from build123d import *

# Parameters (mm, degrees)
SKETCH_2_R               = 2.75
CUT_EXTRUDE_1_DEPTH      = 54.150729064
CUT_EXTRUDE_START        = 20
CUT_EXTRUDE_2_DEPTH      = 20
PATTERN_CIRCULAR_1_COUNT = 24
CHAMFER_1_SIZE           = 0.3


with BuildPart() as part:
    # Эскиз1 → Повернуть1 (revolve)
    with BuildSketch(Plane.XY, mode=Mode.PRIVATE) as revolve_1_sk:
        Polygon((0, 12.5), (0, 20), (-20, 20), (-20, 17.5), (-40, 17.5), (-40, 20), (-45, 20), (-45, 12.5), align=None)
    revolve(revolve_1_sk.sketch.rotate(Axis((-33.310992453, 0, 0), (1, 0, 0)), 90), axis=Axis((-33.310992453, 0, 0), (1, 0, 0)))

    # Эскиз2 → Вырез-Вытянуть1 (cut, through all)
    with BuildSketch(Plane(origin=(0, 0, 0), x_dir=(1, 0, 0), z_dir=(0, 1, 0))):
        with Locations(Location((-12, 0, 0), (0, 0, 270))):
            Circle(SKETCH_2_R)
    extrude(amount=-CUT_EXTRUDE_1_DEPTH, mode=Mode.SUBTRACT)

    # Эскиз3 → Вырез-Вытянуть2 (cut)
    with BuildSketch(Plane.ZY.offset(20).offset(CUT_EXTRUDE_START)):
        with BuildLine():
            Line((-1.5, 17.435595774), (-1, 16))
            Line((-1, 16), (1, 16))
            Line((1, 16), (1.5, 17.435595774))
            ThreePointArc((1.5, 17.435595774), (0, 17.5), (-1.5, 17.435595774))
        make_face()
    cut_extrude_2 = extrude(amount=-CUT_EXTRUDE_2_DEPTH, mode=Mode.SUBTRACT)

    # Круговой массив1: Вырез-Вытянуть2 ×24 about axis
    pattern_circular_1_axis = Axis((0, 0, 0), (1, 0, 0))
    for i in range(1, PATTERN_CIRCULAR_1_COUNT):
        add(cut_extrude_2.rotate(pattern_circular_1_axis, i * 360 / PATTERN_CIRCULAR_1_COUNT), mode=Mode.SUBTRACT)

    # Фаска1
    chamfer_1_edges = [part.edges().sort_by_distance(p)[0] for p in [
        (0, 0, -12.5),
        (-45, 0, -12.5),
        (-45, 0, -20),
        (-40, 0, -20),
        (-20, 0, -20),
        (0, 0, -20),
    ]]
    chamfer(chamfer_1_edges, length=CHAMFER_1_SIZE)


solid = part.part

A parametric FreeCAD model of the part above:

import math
import FreeCAD as App
import Part
import Sketcher
from FreeCAD import Vector
Q = App.Units.Quantity


def edges_at(feature, points):
    """Names of the edges that pass closest to the given points."""
    edges = feature.Shape.Edges
    near = lambda p: min(range(len(edges)), key=lambda i: edges[i].distToShape(Part.Vertex(*p))[0])
    return sorted({f"Edge{near(p) + 1}" for p in points})


def add_polygon(sketch, points):
    """Adds a closed chain of lines whose ends are joined by coincident constraints."""
    first, n = sketch.GeometryCount, len(points)
    for a, b in zip(points, points[1:] + points[:1]):
        sketch.addGeometry(Part.LineSegment(App.Vector(*a, 0), App.Vector(*b, 0)), False)
    for i in range(n):
        sketch.addConstraint(Sketcher.Constraint("Coincident", first + i, 2, first + (i + 1) % n, 1))

doc = App.newDocument("Part")
body = doc.addObject("PartDesign::Body", "Body")

# Sketch on XY plane
sketch1 = doc.addObject("Sketcher::SketchObject", "Sketch")
body.addObject(sketch1)
sketch1.AttachmentSupport = (doc.XY_Plane, [""])
sketch1.MapMode = "FlatFace"
add_polygon(sketch1, [(0, 12.5), (0, 20), (-20, 20), (-20, 17.5), (-40, 17.5), (-40, 20), (-45, 20), (-45, 12.5)])  # lines 0-7
sketch1.addConstraint(Sketcher.Constraint("Vertical", 0))
sketch1.addConstraint(Sketcher.Constraint("Horizontal", 1))
sketch1.addConstraint(Sketcher.Constraint("Vertical", 2))
sketch1.addConstraint(Sketcher.Constraint("Horizontal", 3))
sketch1.addConstraint(Sketcher.Constraint("Vertical", 4))
sketch1.addConstraint(Sketcher.Constraint("Horizontal", 5))
sketch1.addConstraint(Sketcher.Constraint("Vertical", 6))
sketch1.addConstraint(Sketcher.Constraint("Horizontal", 7))
sketch1.addConstraint(Sketcher.Constraint("PointOnObject", 0, 2, -2))
sketch1.addConstraint(Sketcher.Constraint("Horizontal", 1, 2, 4, 2))
sketch1.addConstraint(Sketcher.Constraint("Equal", 1, 3))
sketch1.addConstraint(Sketcher.Constraint("DistanceX", 1, 2, 1, 1, Q("20 mm")))
sketch1.addConstraint(Sketcher.Constraint("DistanceX", 5, 2, 5, 1, Q("5 mm")))
sketch1.addConstraint(Sketcher.Constraint("DistanceY", 0, 1, 0, 2, Q("7.5 mm")))
sketch1.addConstraint(Sketcher.Constraint("DistanceY", 2, 2, 2, 1, Q("2.5 mm")))
sketch1.addConstraint(Sketcher.Constraint("DistanceY", -1, 1, 0, 2, Q("20 mm")))
revolution = doc.addObject("PartDesign::Revolution", "Revolution")
body.addObject(revolution)
revolution.Profile = sketch1
revolution.ReferenceAxis = (sketch1, ["H_Axis"])
revolution.Angle = 360

# Sketch on XZ plane
sketch2 = doc.addObject("Sketcher::SketchObject", "Sketch001")
body.addObject(sketch2)
sketch2.AttachmentSupport = (doc.XZ_Plane, [""])
sketch2.MapMode = "FlatFace"
sketch2.addGeometry(Part.Circle(Vector(-12, 0, 0), Vector(0, 0, 1), 2.8), False)
sketch2.addConstraint(Sketcher.Constraint("PointOnObject", 0, 3, -1))
sketch2.addConstraint(Sketcher.Constraint("Diameter", 0, Q("5.5 mm")))
sketch2.addConstraint(Sketcher.Constraint("DistanceX", 0, 3, -1, 1, Q("12 mm")))
pocket1 = doc.addObject("PartDesign::Pocket", "Pocket")
body.addObject(pocket1)
pocket1.Profile = sketch2
pocket1.Type = "ThroughAll"
pocket1.Reversed = True

# Sketch on YZ plane
sketch3 = doc.addObject("Sketcher::SketchObject", "Sketch002")
body.addObject(sketch3)
sketch3.AttachmentSupport = (doc.YZ_Plane, [""])
sketch3.MapMode = "FlatFace"
sketch3.AttachmentOffset = App.Placement(Vector(0, 0, -40), App.Rotation())
sketch3.addGeometry(Part.LineSegment(Vector(17.4, -1.5, 0), Vector(16, -1, 0)), False)
sketch3.addGeometry(Part.LineSegment(Vector(16, -1, 0), Vector(16, 1, 0)), False)
sketch3.addGeometry(Part.LineSegment(Vector(16, 1, 0), Vector(17.4, 1.5, 0)), False)
sketch3.addGeometry(Part.ArcOfCircle(Part.Circle(Vector(0, 0, 0), Vector(0, 0, 1), 17.5), math.radians(-4.92), math.radians(4.92)), False)
sketch3.addConstraint(Sketcher.Constraint("Coincident", 0, 2, 1, 1))
sketch3.addConstraint(Sketcher.Constraint("Coincident", 1, 2, 2, 1))
sketch3.addConstraint(Sketcher.Constraint("Coincident", 2, 2, 3, 2))
sketch3.addConstraint(Sketcher.Constraint("Coincident", 3, 1, 0, 1))
sketch3.addConstraint(Sketcher.Constraint("Vertical", 1))
sketch3.addConstraint(Sketcher.Constraint("Coincident", 3, 3, -1, 1))
sketch3.addConstraint(Sketcher.Constraint("Vertical", 2, 2, 3, 1))
sketch3.addConstraint(Sketcher.Constraint("Equal", 0, 2))
sketch3.addConstraint(Sketcher.Constraint("Radius", 3, Q("17.5 mm")))
sketch3.addConstraint(Sketcher.Constraint("DistanceY", 1, 1, 1, 2, Q("2 mm")))
sketch3.addConstraint(Sketcher.Constraint("DistanceX", -1, 1, 0, 2, Q("16 mm")))
sketch3.addConstraint(Sketcher.Constraint("DistanceY", 3, 1, 2, 2, Q("3 mm")))
pocket2 = doc.addObject("PartDesign::Pocket", "Pocket001")
body.addObject(pocket2)
pocket2.Profile = sketch3
pocket2.Length = 20
pocket2.Reversed = True
doc.recompute()

polarpattern = doc.addObject("PartDesign::PolarPattern", "PolarPattern")
body.addObject(polarpattern)
polarpattern.Originals = [pocket2]
polarpattern.Axis = (doc.X_Axis, [""])
polarpattern.Angle = 360
polarpattern.Occurrences = 24
body.Tip = polarpattern
doc.recompute()

chamfer = doc.addObject("PartDesign::Chamfer", "Chamfer")
body.addObject(chamfer)
chamfer.Base = (polarpattern, edges_at(polarpattern, [
    (0, 0, -12.5),
    (-45, 0, -12.5),
    (-45, 0, -20),
    (-40, 0, -20),
    (-20, 0, -20),
    (0, 0, -20),
]))
chamfer.Size = 0.3

doc.recompute()
